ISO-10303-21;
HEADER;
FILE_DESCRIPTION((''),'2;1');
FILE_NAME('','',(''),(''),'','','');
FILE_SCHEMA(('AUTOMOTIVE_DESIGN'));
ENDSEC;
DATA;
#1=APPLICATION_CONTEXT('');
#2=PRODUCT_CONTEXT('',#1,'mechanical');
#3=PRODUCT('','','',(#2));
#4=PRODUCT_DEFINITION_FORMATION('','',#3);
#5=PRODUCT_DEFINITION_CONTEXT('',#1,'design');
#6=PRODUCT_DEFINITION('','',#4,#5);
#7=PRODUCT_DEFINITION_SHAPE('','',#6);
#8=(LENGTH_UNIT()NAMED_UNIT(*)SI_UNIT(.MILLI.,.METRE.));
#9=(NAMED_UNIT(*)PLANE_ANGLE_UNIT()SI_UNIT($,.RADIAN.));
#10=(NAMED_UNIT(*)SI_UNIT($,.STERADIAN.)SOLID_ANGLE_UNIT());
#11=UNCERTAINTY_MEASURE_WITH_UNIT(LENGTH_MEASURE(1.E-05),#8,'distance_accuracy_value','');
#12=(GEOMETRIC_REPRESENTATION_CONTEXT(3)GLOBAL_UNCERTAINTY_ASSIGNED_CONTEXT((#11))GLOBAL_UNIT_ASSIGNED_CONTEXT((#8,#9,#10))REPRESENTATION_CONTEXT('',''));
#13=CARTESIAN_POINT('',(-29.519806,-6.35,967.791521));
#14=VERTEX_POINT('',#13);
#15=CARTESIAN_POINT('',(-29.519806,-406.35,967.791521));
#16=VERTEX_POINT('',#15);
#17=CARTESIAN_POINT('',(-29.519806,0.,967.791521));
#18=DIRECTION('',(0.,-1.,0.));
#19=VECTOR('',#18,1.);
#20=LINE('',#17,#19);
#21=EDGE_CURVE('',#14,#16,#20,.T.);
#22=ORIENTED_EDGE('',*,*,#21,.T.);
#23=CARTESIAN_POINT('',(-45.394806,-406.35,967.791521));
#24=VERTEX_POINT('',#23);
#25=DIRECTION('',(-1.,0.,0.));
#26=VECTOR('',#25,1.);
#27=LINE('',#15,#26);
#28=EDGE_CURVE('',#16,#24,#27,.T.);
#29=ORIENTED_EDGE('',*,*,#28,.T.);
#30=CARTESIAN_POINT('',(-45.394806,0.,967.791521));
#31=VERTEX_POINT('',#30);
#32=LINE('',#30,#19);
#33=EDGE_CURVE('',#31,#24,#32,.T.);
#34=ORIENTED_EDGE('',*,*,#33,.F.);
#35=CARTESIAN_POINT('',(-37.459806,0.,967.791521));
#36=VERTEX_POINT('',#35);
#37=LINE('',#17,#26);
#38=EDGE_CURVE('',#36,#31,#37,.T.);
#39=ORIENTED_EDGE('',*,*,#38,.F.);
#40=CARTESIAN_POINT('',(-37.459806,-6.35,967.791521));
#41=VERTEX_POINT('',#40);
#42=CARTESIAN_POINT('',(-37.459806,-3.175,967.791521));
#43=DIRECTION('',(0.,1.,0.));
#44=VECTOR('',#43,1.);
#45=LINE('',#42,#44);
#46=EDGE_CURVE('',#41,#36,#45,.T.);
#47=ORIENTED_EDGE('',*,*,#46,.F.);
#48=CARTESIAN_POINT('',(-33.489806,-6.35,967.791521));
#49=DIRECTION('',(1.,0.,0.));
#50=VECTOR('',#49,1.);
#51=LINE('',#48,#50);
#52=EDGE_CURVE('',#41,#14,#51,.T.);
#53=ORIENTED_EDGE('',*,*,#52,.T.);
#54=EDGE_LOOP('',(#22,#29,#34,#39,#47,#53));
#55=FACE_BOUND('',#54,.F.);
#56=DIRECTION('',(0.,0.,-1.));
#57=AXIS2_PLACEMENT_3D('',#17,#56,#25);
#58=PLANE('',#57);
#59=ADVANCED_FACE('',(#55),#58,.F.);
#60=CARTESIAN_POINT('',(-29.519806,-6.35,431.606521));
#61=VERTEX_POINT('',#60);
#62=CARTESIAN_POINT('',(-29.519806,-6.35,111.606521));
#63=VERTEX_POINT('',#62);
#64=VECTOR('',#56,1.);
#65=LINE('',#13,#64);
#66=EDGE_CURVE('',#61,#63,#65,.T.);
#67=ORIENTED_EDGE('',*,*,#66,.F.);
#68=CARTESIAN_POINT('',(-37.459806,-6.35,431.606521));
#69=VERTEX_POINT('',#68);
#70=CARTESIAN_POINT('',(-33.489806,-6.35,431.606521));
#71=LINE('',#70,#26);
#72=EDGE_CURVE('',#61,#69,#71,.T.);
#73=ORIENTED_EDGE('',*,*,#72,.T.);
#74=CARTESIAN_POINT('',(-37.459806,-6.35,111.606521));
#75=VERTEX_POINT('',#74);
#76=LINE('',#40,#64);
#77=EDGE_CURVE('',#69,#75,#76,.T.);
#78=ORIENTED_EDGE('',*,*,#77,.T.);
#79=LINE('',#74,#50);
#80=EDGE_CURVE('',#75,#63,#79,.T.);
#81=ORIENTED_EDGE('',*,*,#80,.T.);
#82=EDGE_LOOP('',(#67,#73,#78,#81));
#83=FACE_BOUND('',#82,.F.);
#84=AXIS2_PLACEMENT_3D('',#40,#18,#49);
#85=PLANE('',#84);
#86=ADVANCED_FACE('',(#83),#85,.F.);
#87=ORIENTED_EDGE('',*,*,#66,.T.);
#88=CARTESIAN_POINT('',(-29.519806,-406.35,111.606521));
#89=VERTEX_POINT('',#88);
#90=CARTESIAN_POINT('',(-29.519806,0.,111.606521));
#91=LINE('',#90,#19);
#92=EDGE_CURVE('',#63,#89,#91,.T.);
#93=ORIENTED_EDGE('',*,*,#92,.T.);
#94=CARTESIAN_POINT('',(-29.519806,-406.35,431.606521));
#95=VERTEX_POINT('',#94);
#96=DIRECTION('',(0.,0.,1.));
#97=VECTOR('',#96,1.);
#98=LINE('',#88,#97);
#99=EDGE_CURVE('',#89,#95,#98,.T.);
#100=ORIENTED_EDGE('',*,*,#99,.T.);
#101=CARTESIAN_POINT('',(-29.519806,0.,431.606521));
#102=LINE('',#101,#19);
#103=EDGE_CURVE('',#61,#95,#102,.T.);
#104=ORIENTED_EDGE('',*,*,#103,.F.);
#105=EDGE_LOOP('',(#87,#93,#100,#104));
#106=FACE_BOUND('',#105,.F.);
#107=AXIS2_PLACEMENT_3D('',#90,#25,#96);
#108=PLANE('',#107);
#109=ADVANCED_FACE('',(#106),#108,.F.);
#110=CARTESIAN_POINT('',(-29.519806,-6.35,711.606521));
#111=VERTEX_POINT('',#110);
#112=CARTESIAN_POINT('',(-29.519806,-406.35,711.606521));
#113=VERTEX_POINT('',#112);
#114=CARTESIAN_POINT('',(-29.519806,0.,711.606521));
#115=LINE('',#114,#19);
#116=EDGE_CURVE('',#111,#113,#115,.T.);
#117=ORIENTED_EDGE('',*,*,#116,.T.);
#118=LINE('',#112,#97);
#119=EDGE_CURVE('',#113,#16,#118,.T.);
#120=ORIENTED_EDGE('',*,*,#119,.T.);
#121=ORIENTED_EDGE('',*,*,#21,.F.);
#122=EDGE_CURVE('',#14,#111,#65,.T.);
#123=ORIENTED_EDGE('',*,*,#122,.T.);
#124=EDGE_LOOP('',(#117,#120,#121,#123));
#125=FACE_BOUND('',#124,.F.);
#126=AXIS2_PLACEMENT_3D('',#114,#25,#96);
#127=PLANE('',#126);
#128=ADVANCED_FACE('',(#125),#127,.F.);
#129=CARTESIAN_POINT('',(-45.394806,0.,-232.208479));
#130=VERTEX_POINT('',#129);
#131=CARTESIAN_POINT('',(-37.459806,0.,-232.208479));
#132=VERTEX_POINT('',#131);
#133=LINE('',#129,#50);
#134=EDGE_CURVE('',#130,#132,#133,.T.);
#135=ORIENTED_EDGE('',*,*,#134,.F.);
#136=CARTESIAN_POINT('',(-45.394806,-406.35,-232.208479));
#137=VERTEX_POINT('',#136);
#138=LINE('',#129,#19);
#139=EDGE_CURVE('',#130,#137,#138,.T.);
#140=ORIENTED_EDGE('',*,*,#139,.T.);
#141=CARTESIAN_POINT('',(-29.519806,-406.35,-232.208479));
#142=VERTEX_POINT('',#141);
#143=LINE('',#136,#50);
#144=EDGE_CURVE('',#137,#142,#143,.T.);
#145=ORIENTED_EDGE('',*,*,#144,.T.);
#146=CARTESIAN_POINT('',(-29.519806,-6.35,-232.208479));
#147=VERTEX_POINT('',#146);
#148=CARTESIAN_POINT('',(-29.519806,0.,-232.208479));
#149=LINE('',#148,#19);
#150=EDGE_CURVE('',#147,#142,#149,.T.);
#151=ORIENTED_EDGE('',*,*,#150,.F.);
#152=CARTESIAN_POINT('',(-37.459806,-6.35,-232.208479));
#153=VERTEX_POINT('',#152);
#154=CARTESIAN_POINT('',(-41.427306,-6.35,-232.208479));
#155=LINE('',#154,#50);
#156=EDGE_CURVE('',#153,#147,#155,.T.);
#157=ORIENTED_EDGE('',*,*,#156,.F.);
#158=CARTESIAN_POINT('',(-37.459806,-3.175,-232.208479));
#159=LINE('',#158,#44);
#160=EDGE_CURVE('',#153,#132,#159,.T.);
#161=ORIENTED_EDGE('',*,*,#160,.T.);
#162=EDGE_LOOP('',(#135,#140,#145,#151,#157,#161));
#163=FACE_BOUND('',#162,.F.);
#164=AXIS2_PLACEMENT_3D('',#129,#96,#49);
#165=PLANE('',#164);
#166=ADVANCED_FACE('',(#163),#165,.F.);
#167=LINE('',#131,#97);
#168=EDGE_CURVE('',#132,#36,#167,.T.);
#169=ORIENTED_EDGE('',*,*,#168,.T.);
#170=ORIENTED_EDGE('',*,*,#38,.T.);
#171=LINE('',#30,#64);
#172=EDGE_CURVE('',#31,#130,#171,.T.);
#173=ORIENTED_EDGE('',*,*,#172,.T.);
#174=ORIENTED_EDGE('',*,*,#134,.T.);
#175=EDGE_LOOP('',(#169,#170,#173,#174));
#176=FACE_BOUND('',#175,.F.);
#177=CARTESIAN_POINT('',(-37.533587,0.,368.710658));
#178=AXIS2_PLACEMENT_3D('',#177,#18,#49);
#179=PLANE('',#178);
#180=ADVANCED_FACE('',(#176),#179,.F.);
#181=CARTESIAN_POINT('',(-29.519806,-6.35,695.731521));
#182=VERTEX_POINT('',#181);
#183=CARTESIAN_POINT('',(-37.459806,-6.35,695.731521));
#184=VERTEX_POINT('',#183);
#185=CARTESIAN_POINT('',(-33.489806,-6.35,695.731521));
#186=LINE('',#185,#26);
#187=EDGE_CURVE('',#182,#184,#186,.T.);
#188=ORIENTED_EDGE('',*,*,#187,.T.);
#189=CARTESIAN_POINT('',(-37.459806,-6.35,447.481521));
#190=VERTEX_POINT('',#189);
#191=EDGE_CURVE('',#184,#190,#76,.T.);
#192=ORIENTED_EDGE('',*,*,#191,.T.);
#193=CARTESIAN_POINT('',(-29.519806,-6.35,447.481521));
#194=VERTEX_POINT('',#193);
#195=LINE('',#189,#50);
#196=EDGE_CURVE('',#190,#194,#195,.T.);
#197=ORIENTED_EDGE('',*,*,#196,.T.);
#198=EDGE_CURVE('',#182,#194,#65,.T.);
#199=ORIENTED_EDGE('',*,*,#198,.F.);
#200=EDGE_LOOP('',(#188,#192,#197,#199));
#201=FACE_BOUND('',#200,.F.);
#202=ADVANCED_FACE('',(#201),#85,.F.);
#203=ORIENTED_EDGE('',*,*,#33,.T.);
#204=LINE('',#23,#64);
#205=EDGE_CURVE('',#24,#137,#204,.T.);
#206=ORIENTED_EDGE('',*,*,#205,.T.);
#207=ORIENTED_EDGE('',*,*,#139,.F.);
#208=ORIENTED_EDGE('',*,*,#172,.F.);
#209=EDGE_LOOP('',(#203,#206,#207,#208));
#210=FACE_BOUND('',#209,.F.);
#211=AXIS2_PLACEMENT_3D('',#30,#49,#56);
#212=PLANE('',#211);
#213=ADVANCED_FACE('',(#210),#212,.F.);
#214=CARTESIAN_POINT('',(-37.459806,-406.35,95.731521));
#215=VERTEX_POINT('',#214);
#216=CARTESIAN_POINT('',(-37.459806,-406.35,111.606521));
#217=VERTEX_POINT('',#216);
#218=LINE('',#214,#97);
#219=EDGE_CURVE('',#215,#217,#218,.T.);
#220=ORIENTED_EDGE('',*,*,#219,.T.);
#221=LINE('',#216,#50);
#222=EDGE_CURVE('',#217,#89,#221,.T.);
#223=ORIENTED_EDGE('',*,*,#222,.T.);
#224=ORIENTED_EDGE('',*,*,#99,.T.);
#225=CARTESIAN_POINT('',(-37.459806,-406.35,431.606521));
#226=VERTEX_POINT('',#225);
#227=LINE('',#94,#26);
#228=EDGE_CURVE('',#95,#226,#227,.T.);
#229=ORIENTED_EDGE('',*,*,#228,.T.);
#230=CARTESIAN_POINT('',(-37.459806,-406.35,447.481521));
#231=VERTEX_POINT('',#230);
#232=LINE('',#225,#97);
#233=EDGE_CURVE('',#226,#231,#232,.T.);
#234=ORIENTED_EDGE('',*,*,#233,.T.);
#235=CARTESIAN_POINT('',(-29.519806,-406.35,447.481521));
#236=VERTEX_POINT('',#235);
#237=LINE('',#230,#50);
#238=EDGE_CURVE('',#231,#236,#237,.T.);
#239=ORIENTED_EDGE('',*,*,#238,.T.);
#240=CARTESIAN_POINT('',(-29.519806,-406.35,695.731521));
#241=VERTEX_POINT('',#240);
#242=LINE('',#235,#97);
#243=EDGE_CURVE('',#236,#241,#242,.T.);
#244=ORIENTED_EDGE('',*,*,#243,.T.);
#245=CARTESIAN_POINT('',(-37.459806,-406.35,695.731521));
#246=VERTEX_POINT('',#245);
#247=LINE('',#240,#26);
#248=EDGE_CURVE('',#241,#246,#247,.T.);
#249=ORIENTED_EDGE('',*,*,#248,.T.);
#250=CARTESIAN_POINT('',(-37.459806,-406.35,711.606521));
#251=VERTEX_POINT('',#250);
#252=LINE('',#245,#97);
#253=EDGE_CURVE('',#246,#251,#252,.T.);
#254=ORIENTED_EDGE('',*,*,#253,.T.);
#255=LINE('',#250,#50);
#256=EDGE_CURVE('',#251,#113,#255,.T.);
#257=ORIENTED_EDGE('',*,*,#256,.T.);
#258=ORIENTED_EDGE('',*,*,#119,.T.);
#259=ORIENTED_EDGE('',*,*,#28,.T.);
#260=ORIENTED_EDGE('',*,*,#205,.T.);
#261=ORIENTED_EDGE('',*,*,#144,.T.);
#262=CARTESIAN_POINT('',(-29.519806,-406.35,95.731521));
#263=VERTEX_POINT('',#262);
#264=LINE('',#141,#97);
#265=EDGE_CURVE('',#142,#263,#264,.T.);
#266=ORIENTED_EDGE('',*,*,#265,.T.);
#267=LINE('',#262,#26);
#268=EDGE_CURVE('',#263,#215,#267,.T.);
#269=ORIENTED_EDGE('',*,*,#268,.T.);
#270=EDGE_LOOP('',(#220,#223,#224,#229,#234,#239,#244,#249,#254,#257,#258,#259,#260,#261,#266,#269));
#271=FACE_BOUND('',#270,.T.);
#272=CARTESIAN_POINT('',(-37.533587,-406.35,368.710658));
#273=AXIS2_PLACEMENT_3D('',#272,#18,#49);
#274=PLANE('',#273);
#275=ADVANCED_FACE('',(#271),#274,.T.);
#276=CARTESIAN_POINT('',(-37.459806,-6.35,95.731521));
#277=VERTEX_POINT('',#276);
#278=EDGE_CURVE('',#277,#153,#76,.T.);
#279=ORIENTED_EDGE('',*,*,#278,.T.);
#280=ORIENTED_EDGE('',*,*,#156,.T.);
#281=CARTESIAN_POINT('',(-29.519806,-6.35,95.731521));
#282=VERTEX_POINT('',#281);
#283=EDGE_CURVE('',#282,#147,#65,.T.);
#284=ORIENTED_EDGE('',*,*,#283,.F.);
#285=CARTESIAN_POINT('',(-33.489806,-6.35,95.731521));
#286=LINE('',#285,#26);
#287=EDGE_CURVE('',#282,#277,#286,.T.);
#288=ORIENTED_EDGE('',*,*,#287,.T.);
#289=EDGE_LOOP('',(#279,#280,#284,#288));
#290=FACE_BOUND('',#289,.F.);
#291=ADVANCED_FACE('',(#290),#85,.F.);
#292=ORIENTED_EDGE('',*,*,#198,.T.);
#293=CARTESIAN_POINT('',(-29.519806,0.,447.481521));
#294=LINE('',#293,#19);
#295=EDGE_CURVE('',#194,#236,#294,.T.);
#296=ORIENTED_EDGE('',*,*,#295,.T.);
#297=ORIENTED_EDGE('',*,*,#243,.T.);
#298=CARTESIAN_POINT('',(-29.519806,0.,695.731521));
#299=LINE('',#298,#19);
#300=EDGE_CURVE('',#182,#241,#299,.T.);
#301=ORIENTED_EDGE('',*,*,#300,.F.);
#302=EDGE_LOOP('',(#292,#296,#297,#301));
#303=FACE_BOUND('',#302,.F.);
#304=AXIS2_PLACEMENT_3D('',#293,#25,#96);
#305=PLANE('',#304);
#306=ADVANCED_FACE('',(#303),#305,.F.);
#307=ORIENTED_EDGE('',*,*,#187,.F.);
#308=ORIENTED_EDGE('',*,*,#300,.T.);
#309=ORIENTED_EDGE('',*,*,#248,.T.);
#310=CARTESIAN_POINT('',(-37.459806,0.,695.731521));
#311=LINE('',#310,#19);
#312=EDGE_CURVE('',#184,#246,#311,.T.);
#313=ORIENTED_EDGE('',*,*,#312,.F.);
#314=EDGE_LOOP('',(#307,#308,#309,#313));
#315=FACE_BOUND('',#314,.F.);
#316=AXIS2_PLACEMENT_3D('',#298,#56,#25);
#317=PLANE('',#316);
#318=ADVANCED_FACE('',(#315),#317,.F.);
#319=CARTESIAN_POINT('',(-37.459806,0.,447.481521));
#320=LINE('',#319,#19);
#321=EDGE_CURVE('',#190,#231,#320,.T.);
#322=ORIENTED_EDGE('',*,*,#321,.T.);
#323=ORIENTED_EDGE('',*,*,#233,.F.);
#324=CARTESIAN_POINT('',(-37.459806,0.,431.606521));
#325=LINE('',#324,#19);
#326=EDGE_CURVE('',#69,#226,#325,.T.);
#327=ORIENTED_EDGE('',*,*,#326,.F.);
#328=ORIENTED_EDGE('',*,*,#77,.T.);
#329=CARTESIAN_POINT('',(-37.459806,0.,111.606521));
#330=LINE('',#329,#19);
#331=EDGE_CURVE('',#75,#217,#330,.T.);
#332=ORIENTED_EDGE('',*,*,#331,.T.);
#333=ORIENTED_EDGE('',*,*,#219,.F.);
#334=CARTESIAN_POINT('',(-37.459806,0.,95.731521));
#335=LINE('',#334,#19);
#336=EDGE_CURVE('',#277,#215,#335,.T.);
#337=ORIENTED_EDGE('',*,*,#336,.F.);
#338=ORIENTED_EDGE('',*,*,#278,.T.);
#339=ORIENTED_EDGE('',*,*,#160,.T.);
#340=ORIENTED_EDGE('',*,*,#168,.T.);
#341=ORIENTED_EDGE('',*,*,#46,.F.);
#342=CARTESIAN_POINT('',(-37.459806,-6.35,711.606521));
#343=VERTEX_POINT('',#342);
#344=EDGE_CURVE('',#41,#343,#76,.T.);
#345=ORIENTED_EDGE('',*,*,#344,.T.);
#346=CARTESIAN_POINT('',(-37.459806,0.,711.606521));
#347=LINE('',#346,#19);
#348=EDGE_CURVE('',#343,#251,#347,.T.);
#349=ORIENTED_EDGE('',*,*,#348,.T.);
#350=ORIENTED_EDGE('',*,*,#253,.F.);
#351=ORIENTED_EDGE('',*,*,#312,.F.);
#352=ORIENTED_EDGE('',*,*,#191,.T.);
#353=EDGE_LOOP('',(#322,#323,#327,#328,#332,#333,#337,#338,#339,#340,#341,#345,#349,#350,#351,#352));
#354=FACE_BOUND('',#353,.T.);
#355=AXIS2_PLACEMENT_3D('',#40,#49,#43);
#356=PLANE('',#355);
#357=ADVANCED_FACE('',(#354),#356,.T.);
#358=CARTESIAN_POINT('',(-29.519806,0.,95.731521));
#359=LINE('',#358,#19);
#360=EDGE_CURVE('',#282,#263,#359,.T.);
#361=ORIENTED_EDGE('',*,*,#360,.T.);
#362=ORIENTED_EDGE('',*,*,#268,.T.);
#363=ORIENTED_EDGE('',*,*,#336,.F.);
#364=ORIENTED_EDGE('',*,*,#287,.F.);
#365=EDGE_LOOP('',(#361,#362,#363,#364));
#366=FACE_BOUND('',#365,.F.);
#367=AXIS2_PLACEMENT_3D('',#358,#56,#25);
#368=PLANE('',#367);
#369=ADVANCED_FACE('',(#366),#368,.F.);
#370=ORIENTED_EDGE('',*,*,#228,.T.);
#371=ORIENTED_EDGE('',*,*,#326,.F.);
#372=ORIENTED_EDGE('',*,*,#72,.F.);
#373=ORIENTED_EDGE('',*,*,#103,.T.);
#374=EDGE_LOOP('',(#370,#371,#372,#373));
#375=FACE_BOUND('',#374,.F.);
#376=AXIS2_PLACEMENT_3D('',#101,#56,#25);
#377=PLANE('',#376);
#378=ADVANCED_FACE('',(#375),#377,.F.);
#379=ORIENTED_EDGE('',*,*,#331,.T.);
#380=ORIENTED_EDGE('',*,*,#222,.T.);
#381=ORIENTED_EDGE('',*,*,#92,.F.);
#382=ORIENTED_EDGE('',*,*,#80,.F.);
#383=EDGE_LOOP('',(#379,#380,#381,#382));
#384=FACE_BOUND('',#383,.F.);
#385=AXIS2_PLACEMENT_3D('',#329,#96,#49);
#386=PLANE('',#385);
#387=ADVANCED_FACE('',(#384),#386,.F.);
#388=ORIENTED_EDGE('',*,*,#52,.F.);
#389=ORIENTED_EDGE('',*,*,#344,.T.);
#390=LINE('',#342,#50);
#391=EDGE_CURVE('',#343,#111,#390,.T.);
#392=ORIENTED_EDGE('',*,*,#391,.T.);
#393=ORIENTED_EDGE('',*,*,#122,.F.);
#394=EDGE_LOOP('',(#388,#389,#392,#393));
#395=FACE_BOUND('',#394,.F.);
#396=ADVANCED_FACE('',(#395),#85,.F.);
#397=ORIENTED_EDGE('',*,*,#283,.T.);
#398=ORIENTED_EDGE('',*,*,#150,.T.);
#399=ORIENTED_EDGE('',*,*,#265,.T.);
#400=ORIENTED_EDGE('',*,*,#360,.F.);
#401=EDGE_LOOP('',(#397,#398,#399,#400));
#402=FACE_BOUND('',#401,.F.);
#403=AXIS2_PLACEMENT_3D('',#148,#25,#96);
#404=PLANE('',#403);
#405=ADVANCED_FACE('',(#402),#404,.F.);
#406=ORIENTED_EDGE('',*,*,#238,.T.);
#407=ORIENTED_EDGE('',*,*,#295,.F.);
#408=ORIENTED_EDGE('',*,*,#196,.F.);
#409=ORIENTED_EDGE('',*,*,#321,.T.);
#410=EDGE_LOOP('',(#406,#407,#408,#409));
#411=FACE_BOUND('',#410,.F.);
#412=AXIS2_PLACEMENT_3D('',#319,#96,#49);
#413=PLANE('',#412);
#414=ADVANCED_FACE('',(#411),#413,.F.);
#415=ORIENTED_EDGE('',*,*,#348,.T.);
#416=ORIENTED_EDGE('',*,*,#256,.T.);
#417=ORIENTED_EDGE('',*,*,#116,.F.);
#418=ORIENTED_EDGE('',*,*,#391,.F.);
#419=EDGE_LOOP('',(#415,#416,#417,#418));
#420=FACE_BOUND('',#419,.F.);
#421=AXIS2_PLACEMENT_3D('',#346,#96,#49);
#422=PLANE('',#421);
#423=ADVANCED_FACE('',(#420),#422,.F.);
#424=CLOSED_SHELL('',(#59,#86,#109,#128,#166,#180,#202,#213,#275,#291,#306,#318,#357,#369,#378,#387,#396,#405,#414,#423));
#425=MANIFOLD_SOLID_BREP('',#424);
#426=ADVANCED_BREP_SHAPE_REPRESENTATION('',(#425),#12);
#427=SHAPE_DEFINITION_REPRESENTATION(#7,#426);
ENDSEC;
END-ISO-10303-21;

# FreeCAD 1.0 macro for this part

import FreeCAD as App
import Part
import Sketcher
Q = App.Units.Quantity


def add_polygon(sketch, points):
    """Adds a closed chain of lines whose ends are joined by coincident constraints."""
    first, n = sketch.GeometryCount, len(points)
    for a, b in zip(points, points[1:] + points[:1]):
        sketch.addGeometry(Part.LineSegment(App.Vector(*a, 0), App.Vector(*b, 0)), False)
    for i in range(n):
        sketch.addConstraint(Sketcher.Constraint("Coincident", first + i, 2, first + (i + 1) % n, 1))

doc = App.newDocument("Part")
params = doc.addObject("Spreadsheet::Sheet", "Params")
for row, (alias, value) in enumerate([
    ("sketch1_height", "1200 mm"),
    ("sketch1_height2", "320 mm"),
    ("sketch1_width", "7.94 mm"),
    ("sketch1_height3", "327.94 mm"),
    ("sketch1_height4", "248.25 mm"),
    ("pad1_length", "406.35 mm"),
    ("sketch2_width", "7.94 mm"),
    ("sketch2_height", "6.35 mm"),
], start=1):
    params.set(f"A{row}", alias)
    params.set(f"B{row}", "=" + value)
    params.setAlias(f"B{row}", alias)

body = doc.addObject("PartDesign::Body", "Body")

sketch1 = doc.addObject("Sketcher::SketchObject", "Sketch")
body.addObject(sketch1)
sketch1.AttachmentSupport = (doc.XZ_Plane, [""])
sketch1.MapMode = "FlatFace"
add_polygon(sketch1, [(-30, 968), (-45, 968), (-45, -232), (-30, -232), (-30, 96), (-37, 96), (-37, 112), (-30, 112), (-30, 432), (-37, 432), (-37, 447), (-30, 447), (-30, 696), (-37, 696), (-37, 712), (-30, 712)])
sketch1.addConstraint(Sketcher.Constraint("Horizontal", 0))
sketch1.addConstraint(Sketcher.Constraint("Vertical", 1))
sketch1.addConstraint(Sketcher.Constraint("Horizontal", 2))
sketch1.addConstraint(Sketcher.Constraint("Vertical", 3))
sketch1.addConstraint(Sketcher.Constraint("Horizontal", 4))
sketch1.addConstraint(Sketcher.Constraint("Vertical", 5))
sketch1.addConstraint(Sketcher.Constraint("Horizontal", 6))
sketch1.addConstraint(Sketcher.Constraint("Vertical", 7))
sketch1.addConstraint(Sketcher.Constraint("Horizontal", 8))
sketch1.addConstraint(Sketcher.Constraint("Vertical", 9))
sketch1.addConstraint(Sketcher.Constraint("Horizontal", 10))
sketch1.addConstraint(Sketcher.Constraint("Vertical", 11))
sketch1.addConstraint(Sketcher.Constraint("Horizontal", 12))
sketch1.addConstraint(Sketcher.Constraint("Vertical", 13))
sketch1.addConstraint(Sketcher.Constraint("Horizontal", 14))
sketch1.addConstraint(Sketcher.Constraint("Vertical", 15))
sketch1.addConstraint(Sketcher.Constraint("Vertical", 3, 2, 6, 2))
sketch1.addConstraint(Sketcher.Constraint("Vertical", 5, 2, 8, 2))
sketch1.addConstraint(Sketcher.Constraint("Vertical", 7, 2, 10, 2))
sketch1.addConstraint(Sketcher.Constraint("Vertical", 9, 2, 12, 2))
sketch1.addConstraint(Sketcher.Constraint("Vertical", 11, 2, 14, 2))
sketch1.addConstraint(Sketcher.Constraint("Equal", 2, 5))
sketch1.addConstraint(Sketcher.Constraint("Equal", 5, 9))
sketch1.addConstraint(Sketcher.Constraint("Equal", 9, 13))
sketch1.addConstraint(Sketcher.Constraint("DistanceY", 1, 2, 1, 1, Q("1200 mm")))
sketch1.addConstraint(Sketcher.Constraint("DistanceY", 7, 1, 7, 2, Q("320 mm")))
sketch1.addConstraint(Sketcher.Constraint("DistanceX", 4, 2, 4, 1, Q("7.94 mm")))
sketch1.addConstraint(Sketcher.Constraint("DistanceY", 3, 1, 3, 2, Q("327.94 mm")))
sketch1.addConstraint(Sketcher.Constraint("DistanceY", 11, 1, 11, 2, Q("248.25 mm")))
sketch1.addConstraint(Sketcher.Constraint("DistanceX", 0, 2, 0, 1, Q("15.875 mm")))
sketch1.addConstraint(Sketcher.Constraint("DistanceY", -1, 1, 0, 2, Q("967.791521 mm")))
sketch1.addConstraint(Sketcher.Constraint("DistanceX", 0, 2, -1, 1, Q("45.394806 mm")))
sketch1.setExpression("Constraints[40]", "Params.sketch1_height")
sketch1.setExpression("Constraints[41]", "Params.sketch1_height2")
sketch1.setExpression("Constraints[42]", "Params.sketch1_width")
sketch1.setExpression("Constraints[43]", "Params.sketch1_height3")
sketch1.setExpression("Constraints[44]", "Params.sketch1_height4")
pad1 = doc.addObject("PartDesign::Pad", "Pad")
body.addObject(pad1)
pad1.Profile = sketch1
pad1.setExpression("Length", "Params.pad1_length")

sketch2 = doc.addObject("Sketcher::SketchObject", "Sketch001")
body.addObject(sketch2)
sketch2.AttachmentSupport = (doc.XY_Plane, [""])
sketch2.MapMode = "FlatFace"
sketch2.AttachmentOffset = App.Placement(App.Vector(0, 0, 967.791521), App.Rotation())
add_polygon(sketch2, [(-37, 0), (-37, -6), (-30, -6), (-30, 0)])
sketch2.addConstraint(Sketcher.Constraint("Vertical", 0))
sketch2.addConstraint(Sketcher.Constraint("Horizontal", 1))
sketch2.addConstraint(Sketcher.Constraint("Vertical", 2))
sketch2.addConstraint(Sketcher.Constraint("Horizontal", 3))
sketch2.addConstraint(Sketcher.Constraint("PointOnObject", 2, 2, -1))
sketch2.addConstraint(Sketcher.Constraint("DistanceX", 1, 1, 1, 2, Q("7.94 mm")))
sketch2.addConstraint(Sketcher.Constraint("DistanceY", 0, 2, 0, 1, Q("6.35 mm")))
sketch2.addConstraint(Sketcher.Constraint("DistanceX", 0, 2, -1, 1, Q("37.459806 mm")))
sketch2.setExpression("Constraints[9]", "Params.sketch2_width")
sketch2.setExpression("Constraints[10]", "Params.sketch2_height")
pocket1 = doc.addObject("PartDesign::Pocket", "Pocket")
body.addObject(pocket1)
pocket1.Profile = sketch2
pocket1.Type = "ThroughAll"

doc.recompute()
